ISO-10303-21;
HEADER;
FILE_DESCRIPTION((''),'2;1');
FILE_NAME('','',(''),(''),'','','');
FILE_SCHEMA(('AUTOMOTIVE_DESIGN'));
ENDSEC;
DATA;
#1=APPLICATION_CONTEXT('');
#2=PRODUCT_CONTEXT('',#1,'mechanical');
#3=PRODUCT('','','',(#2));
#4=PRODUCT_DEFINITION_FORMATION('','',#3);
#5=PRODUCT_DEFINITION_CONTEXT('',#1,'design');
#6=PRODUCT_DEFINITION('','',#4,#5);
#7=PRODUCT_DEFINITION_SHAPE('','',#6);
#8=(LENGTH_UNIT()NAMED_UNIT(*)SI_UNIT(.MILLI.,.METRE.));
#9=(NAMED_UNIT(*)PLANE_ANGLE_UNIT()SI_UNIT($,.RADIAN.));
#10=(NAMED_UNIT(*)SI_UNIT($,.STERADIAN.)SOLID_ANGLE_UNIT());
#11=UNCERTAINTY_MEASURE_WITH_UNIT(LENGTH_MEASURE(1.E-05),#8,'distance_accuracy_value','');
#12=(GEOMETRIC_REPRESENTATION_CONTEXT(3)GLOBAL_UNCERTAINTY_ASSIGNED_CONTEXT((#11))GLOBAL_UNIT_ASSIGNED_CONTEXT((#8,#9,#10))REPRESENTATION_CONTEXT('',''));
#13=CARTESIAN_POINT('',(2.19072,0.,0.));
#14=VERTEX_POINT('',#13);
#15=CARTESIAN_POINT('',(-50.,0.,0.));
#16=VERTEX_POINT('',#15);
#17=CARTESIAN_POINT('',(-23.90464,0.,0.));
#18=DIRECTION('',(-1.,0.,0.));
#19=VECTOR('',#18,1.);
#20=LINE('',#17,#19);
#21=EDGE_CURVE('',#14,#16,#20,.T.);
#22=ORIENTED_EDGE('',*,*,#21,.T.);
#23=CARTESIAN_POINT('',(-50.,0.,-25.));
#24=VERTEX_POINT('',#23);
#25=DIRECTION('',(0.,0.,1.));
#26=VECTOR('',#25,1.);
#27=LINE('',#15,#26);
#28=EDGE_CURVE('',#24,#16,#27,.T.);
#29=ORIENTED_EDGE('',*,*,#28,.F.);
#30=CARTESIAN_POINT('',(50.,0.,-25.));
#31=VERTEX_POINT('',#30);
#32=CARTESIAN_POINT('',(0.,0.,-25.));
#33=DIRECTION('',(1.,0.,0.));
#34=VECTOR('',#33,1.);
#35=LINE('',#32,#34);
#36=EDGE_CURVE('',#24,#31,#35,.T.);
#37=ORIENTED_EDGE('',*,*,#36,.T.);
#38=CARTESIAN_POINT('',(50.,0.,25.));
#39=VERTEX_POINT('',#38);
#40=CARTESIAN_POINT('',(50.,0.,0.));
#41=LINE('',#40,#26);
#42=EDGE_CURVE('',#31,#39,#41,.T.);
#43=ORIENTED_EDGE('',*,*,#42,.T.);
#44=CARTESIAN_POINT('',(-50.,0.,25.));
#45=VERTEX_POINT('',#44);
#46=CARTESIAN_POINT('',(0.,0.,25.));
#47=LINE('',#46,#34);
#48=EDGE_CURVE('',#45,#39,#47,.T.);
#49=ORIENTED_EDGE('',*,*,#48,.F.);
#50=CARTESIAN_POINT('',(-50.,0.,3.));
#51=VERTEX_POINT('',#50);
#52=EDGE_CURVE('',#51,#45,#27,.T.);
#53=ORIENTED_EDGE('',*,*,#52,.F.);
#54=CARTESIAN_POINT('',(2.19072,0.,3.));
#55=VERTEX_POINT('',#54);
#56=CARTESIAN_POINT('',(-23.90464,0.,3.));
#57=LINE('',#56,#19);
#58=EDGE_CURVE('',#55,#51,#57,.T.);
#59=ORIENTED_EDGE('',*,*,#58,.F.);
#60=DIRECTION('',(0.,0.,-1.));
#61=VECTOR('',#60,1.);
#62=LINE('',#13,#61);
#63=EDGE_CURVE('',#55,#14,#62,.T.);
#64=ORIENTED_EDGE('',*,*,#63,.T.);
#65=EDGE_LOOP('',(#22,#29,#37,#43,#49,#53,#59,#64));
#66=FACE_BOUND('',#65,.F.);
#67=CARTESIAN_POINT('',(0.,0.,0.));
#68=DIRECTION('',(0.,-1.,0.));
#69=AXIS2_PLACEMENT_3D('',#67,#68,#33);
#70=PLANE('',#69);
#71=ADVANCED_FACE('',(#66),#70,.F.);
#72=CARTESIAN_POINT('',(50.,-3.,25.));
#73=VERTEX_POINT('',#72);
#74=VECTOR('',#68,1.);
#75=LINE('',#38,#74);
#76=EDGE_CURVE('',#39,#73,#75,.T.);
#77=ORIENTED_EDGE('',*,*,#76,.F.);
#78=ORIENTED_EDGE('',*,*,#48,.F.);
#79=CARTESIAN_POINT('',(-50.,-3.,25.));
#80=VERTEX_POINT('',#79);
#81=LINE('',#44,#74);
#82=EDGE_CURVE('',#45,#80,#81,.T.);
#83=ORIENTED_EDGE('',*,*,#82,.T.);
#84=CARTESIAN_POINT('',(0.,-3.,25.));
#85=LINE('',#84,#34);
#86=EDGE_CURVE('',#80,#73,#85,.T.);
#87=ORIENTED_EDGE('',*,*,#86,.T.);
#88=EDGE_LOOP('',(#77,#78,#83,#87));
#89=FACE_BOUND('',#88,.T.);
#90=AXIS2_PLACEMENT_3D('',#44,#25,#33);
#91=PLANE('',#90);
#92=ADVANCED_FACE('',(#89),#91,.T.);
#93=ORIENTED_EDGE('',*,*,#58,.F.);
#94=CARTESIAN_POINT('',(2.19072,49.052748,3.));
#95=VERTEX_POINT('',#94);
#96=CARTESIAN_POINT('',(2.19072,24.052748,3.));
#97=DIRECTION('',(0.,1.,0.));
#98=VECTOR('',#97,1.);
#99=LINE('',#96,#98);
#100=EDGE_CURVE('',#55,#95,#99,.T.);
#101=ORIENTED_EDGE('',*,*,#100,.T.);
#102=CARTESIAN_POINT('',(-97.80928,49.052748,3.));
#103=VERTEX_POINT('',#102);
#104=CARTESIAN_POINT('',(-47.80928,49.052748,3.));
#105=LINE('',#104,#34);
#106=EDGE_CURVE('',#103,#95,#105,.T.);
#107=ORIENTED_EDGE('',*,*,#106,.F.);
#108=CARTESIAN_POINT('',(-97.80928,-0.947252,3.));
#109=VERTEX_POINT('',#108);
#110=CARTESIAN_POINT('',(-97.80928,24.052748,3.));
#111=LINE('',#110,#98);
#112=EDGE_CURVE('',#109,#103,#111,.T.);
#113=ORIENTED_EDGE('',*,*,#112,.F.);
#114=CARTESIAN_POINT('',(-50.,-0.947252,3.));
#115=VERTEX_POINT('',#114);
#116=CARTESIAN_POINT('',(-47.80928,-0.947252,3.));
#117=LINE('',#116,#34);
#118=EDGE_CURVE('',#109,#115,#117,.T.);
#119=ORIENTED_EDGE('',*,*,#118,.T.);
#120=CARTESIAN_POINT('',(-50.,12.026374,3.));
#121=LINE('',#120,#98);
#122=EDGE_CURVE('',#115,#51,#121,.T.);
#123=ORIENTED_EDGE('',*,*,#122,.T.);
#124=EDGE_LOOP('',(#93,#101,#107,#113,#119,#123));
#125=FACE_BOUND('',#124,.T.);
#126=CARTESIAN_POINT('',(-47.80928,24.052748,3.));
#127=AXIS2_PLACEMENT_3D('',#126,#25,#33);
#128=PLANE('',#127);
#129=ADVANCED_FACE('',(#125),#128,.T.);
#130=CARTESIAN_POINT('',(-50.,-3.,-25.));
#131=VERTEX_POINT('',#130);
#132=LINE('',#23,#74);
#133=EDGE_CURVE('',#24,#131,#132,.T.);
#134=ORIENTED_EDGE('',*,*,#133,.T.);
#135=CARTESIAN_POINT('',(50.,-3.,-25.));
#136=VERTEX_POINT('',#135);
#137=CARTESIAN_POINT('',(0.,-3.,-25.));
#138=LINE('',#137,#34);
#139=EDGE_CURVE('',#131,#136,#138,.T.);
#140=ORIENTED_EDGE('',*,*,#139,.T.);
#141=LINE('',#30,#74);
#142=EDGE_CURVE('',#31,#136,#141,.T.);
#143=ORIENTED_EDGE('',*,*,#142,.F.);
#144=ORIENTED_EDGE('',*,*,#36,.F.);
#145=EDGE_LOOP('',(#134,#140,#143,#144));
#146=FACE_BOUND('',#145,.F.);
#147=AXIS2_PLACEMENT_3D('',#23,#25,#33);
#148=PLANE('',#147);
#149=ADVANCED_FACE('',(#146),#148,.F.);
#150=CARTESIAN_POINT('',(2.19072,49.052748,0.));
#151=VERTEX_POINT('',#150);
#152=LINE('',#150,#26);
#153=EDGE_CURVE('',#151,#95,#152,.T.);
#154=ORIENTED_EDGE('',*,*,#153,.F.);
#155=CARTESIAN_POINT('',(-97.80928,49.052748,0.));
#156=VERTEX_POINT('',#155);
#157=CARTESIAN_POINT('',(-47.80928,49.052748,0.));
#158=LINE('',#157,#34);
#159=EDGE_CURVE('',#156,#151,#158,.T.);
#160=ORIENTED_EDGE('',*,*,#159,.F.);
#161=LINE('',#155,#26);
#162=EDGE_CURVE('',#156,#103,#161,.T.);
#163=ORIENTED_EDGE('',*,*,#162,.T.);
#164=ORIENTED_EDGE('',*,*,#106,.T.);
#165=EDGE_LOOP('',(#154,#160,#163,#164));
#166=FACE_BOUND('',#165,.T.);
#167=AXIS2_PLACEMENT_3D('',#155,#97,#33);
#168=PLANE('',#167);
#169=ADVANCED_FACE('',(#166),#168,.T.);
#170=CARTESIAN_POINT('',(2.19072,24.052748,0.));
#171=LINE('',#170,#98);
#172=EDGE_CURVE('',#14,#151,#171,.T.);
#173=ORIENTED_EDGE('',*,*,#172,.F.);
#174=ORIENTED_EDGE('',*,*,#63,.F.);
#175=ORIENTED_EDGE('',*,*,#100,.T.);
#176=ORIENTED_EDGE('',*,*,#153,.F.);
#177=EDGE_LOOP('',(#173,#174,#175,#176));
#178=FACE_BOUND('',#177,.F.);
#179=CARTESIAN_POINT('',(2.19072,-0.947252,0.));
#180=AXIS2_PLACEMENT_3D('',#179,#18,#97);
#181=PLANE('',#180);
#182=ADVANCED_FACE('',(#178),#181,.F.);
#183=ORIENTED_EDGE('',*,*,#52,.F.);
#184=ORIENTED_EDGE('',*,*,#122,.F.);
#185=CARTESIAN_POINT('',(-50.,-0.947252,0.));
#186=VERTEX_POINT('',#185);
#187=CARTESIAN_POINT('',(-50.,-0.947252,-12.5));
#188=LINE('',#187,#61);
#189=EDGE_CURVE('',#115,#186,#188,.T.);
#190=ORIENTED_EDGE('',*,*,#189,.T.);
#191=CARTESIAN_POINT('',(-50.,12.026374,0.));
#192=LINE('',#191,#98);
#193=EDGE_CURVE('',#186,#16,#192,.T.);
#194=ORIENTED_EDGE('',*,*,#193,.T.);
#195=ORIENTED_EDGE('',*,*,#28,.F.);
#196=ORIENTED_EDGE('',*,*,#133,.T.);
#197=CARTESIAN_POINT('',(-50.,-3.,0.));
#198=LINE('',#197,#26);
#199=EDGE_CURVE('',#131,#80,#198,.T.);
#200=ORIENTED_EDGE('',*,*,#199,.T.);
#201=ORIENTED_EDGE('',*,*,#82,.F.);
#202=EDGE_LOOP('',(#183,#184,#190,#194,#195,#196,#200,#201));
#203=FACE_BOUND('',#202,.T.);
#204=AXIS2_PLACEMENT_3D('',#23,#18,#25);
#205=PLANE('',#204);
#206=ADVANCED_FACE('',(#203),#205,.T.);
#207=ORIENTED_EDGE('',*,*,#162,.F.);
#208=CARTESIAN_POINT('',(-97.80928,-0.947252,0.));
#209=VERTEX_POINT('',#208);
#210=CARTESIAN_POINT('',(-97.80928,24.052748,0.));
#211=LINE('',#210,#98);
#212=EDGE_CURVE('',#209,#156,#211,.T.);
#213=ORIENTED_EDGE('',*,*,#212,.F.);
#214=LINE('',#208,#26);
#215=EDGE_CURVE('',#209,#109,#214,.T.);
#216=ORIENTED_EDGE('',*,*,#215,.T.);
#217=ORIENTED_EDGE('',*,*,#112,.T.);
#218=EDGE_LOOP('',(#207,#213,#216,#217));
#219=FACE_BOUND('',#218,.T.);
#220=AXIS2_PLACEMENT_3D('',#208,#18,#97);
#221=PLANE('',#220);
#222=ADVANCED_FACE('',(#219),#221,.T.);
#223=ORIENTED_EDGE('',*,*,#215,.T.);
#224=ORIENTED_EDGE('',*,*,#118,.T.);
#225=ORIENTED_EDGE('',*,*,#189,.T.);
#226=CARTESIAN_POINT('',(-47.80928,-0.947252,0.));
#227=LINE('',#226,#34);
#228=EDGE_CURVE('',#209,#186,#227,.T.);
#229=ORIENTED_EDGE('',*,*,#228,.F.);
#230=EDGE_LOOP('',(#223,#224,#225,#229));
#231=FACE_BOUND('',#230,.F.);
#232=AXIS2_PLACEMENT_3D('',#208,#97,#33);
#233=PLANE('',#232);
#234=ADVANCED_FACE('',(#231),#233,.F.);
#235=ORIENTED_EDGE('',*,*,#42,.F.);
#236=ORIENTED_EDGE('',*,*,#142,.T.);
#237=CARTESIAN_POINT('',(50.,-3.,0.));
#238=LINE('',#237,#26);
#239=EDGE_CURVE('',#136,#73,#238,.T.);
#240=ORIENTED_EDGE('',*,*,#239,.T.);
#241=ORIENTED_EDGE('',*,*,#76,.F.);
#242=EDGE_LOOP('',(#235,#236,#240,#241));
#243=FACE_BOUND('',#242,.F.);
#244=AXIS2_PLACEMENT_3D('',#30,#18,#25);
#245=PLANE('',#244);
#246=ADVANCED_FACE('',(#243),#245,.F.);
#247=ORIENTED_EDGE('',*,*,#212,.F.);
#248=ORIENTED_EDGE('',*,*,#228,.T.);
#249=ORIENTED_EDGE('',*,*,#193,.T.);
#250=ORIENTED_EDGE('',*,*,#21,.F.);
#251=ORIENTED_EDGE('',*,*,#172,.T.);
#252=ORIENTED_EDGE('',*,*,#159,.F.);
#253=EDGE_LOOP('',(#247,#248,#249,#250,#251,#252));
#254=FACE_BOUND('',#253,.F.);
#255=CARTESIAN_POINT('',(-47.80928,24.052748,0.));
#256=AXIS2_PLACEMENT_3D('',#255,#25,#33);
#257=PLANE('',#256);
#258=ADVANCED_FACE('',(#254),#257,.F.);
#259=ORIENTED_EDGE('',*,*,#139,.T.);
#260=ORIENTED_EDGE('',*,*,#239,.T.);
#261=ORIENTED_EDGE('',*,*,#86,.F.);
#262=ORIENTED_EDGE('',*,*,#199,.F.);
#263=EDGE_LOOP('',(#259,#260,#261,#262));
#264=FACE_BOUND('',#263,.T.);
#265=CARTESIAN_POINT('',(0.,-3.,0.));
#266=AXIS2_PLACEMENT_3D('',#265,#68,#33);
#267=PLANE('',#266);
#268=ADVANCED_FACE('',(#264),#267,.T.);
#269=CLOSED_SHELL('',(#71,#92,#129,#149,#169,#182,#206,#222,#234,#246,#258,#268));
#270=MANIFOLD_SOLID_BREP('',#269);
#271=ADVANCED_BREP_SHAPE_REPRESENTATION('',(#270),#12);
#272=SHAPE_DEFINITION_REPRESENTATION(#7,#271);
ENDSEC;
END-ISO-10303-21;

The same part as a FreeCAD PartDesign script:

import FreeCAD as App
import Part
import Sketcher
Q = App.Units.Quantity

doc = App.newDocument("Part")
body = doc.addObject("PartDesign::Body", "Body")

# Sketch on XZ plane
sketch1 = body.newObject("Sketcher::SketchObject", "Sketch")
sketch1.AttachmentSupport = (doc.getObject("XZ_Plane"), [""])
sketch1.MapMode = "FlatFace"
sketch1.addGeometry(Part.LineSegment(App.Vector(-50, 25, 0), App.Vector(-50, -25, 0)), False)
sketch1.addGeometry(Part.LineSegment(App.Vector(-50, -25, 0), App.Vector(50, -25, 0)), False)
sketch1.addGeometry(Part.LineSegment(App.Vector(50, -25, 0), App.Vector(50, 25, 0)), False)
sketch1.addGeometry(Part.LineSegment(App.Vector(50, 25, 0), App.Vector(-50, 25, 0)), False)
sketch1.addConstraint(Sketcher.Constraint("Coincident", 0, 2, 1, 1))
sketch1.addConstraint(Sketcher.Constraint("Coincident", 1, 2, 2, 1))
sketch1.addConstraint(Sketcher.Constraint("Coincident", 2, 2, 3, 1))
sketch1.addConstraint(Sketcher.Constraint("Coincident", 3, 2, 0, 1))
sketch1.addConstraint(Sketcher.Constraint("Vertical", 0))
sketch1.addConstraint(Sketcher.Constraint("Horizontal", 1))
sketch1.addConstraint(Sketcher.Constraint("Vertical", 2))
sketch1.addConstraint(Sketcher.Constraint("Horizontal", 3))
sketch1.addConstraint(Sketcher.Constraint("Symmetric", 0, 2, 2, 2, -1, 1))
sketch1.addConstraint(Sketcher.Constraint("DistanceX", 1, 1, 1, 2, Q("100 mm")))
sketch1.addConstraint(Sketcher.Constraint("DistanceY", 0, 2, 0, 1, Q("50 mm")))
pad1 = body.newObject("PartDesign::Pad", "Pad")
pad1.Profile = sketch1
pad1.Length = 3

# Sketch on XY plane
sketch2 = body.newObject("Sketcher::SketchObject", "Sketch001")
sketch2.AttachmentSupport = (doc.getObject("XY_Plane"), [""])
sketch2.MapMode = "FlatFace"
sketch2.addGeometry(Part.LineSegment(App.Vector(-98, 49, 0), App.Vector(-98, -1, 0)), False)
sketch2.addGeometry(Part.LineSegment(App.Vector(-98, -1, 0), App.Vector(2, -1, 0)), False)
sketch2.addGeometry(Part.LineSegment(App.Vector(2, -1, 0), App.Vector(2, 49, 0)), False)
sketch2.addGeometry(Part.LineSegment(App.Vector(2, 49, 0), App.Vector(-98, 49, 0)), False)
sketch2.addConstraint(Sketcher.Constraint("Coincident", 0, 2, 1, 1))
sketch2.addConstraint(Sketcher.Constraint("Coincident", 1, 2, 2, 1))
sketch2.addConstraint(Sketcher.Constraint("Coincident", 2, 2, 3, 1))
sketch2.addConstraint(Sketcher.Constraint("Coincident", 3, 2, 0, 1))
sketch2.addConstraint(Sketcher.Constraint("Vertical", 0))
sketch2.addConstraint(Sketcher.Constraint("Horizontal", 1))
sketch2.addConstraint(Sketcher.Constraint("Vertical", 2))
sketch2.addConstraint(Sketcher.Constraint("Horizontal", 3))
sketch2.addConstraint(Sketcher.Constraint("DistanceX", 1, 1, 1, 2, Q("100 mm")))
sketch2.addConstraint(Sketcher.Constraint("DistanceY", 0, 2, 0, 1, Q("50 mm")))
sketch2.addConstraint(Sketcher.Constraint("DistanceX", 0, 2, -1, 1, Q("97.80928 mm")))
sketch2.addConstraint(Sketcher.Constraint("DistanceY", 0, 2, -1, 1, Q("0.947252 mm")))
pad2 = body.newObject("PartDesign::Pad", "Pad001")
pad2.Profile = sketch2
pad2.Length = 3

doc.recompute()
